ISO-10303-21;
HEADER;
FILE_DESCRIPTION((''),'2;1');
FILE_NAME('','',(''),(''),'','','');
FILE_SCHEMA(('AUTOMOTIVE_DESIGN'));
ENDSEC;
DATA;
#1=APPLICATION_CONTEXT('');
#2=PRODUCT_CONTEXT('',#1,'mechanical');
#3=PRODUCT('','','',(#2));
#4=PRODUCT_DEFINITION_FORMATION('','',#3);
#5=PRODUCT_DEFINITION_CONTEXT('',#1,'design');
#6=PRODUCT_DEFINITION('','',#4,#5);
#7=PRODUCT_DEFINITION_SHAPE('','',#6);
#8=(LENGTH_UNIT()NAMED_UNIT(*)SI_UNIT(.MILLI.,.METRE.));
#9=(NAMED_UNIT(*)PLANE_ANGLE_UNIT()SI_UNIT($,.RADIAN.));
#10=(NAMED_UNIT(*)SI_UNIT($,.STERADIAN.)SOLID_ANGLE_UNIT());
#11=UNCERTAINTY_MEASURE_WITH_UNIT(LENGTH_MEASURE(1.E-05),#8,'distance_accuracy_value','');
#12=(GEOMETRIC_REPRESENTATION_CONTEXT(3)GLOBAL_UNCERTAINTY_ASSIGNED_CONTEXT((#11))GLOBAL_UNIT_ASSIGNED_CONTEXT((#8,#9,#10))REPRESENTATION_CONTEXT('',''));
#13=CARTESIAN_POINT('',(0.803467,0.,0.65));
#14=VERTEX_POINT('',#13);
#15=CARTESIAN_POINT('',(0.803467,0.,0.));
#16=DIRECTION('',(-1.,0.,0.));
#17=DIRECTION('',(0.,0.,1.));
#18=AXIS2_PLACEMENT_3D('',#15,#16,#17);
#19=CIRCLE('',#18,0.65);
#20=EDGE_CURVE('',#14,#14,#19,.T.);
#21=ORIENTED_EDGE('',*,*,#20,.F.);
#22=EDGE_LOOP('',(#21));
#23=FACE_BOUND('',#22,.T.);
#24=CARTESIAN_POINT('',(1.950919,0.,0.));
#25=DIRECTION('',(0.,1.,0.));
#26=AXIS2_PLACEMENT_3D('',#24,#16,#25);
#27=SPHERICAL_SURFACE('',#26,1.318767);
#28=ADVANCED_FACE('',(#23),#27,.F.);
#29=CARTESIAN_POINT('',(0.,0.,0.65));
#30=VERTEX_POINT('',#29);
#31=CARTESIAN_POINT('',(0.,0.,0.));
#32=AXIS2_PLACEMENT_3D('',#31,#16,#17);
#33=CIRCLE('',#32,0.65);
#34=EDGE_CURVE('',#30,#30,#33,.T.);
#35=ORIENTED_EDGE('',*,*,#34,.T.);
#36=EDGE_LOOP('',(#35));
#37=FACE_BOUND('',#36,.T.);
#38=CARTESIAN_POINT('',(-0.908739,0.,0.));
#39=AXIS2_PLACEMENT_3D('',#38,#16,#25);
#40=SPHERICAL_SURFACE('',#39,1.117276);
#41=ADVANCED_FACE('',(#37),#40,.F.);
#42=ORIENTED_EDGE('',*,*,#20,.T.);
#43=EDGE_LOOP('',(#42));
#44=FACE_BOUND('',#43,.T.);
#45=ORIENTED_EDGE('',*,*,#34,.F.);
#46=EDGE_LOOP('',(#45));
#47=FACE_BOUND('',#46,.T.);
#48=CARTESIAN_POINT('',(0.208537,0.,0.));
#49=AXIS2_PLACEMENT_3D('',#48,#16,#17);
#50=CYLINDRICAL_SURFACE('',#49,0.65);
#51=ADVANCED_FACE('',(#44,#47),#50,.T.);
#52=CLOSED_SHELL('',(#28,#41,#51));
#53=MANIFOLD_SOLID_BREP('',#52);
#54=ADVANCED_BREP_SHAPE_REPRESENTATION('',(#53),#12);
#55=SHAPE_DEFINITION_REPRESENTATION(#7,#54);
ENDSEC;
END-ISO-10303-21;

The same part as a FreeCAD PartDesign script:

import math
import FreeCAD as App
import Part
import Sketcher
from FreeCAD import Vector

doc = App.newDocument("Part")
body = doc.addObject("PartDesign::Body", "Body")

# Sketch on XY plane
sketch1 = body.newObject("Sketcher::SketchObject", "Sketch")
sketch1.AttachmentSupport = (doc.getObject("XY_Plane"), [""])
sketch1.MapMode = "FlatFace"
sketch1.addGeometry([
    Part.ArcOfCircle(Part.Circle(Vector(-0.91, 0, 0), Vector(0, 0, 1), 1.12), math.radians(0), math.radians(36)),
    Part.LineSegment(Vector(0.21, 0, 0), Vector(0.63, 0, 0)),
    Part.ArcOfCircle(Part.Circle(Vector(1.95, 0, 0), Vector(0, 0, 1), 1.32), math.radians(150), math.radians(180)),
    Part.LineSegment(Vector(0.8, 0.65, 0), Vector(0, 0.65, 0)),
], False)
sketch1.addConstraint([
    Sketcher.Constraint("Coincident", 0, 1, 1, 1),
    Sketcher.Constraint("Coincident", 1, 2, 2, 2),
    Sketcher.Constraint("Coincident", 2, 1, 3, 1),
    Sketcher.Constraint("Coincident", 3, 2, 0, 2),
    Sketcher.Constraint("Horizontal", 1),
    Sketcher.Constraint("Horizontal", 3),
    Sketcher.Constraint("PointOnObject", 0, 3, -1),
    Sketcher.Constraint("PointOnObject", 2, 3, -1),
    Sketcher.Constraint("PointOnObject", 0, 1, -1),
    Sketcher.Constraint("PointOnObject", 3, 2, -2),
    Sketcher.Constraint("DistanceY", -1, 1, 2, 1, 0.65),
    Sketcher.Constraint("Radius", 0, 1.117276),
    Sketcher.Constraint("Radius", 2, 1.318767),
    Sketcher.Constraint("DistanceX", 1, 1, 1, 2, 0.423614),
])
revolution = body.newObject("PartDesign::Revolution", "Revolution")
revolution.Profile = sketch1
revolution.ReferenceAxis = (sketch1, ["H_Axis"])
revolution.Angle = 360

doc.recompute()
